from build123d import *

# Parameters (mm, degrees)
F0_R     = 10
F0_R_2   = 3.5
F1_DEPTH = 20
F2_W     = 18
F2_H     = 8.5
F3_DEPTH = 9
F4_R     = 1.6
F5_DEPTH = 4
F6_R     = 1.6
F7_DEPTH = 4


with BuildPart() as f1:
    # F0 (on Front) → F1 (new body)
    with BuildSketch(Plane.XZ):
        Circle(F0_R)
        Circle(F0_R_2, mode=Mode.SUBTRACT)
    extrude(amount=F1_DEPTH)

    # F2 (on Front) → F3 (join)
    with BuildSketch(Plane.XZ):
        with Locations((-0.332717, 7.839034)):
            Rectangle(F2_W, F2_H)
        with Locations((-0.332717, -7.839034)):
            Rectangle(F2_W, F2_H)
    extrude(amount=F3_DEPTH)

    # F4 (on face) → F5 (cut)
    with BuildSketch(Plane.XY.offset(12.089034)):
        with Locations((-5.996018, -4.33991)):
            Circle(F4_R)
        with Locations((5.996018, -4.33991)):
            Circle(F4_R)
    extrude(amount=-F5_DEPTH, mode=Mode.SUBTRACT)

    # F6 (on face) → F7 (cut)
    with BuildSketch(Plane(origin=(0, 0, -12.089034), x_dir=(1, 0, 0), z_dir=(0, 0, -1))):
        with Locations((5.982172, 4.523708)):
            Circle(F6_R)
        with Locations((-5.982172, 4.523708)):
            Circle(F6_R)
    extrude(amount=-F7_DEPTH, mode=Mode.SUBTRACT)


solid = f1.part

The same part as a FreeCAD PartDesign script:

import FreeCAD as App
import Part
import Sketcher

V = App.Vector

doc = App.newDocument("Part")
params = doc.addObject("Spreadsheet::Sheet", "Params")
for row, (alias, value) in enumerate([
    ("sketch1_diameter", "20 mm"),
    ("sketch1_diameter2", "7 mm"),
    ("pad1_length", "20 mm"),
    ("sketch2_width", "18 mm"),
    ("sketch2_height", "8.5 mm"),
    ("pad2_length", "9 mm"),
    ("sketch3_diameter", "3.2 mm"),
    ("pocket1_length", "4 mm"),
    ("sketch4_diameter", "3.2 mm"),
    ("pocket2_length", "4 mm"),
], start=1):
    params.set(f"A{row}", alias)
    params.set(f"B{row}", "=" + value)
    params.setAlias(f"B{row}", alias)

body = doc.addObject("PartDesign::Body", "Body")

sketch1 = body.newObject("Sketcher::SketchObject", "Sketch")
sketch1.AttachmentSupport = (doc.getObject("XZ_Plane"), [""])
sketch1.MapMode = "FlatFace"
sketch1.addGeometry([
    Part.Circle(V(0, 0, 0), V(0, 0, 1), 10),
    Part.Circle(V(0, 0, 0), V(0, 0, 1), 3.5),
], False)
sketch1.addConstraint([
    Sketcher.Constraint("Coincident", 0, 3, -1, 1),
    Sketcher.Constraint("Coincident", 1, 3, -1, 1),
    Sketcher.Constraint("Diameter", 0, 20.0),
    Sketcher.Constraint("Diameter", 1, 7.0),
])
sketch1.setExpression("Constraints[2]", "Params.sketch1_diameter")
sketch1.setExpression("Constraints[3]", "Params.sketch1_diameter2")
pad1 = body.newObject("PartDesign::Pad", "Pad")
pad1.Profile = sketch1
pad1.setExpression("Length", "Params.pad1_length")

sketch2 = body.newObject("Sketcher::SketchObject", "Sketch001")
sketch2.AttachmentSupport = (doc.getObject("XZ_Plane"), [""])
sketch2.MapMode = "FlatFace"
sketch2.addGeometry([
    Part.LineSegment(V(-9, 12, 0), V(-9, 4, 0)),
    Part.LineSegment(V(-9, 4, 0), V(9, 4, 0)),
    Part.LineSegment(V(9, 4, 0), V(9, 12, 0)),
    Part.LineSegment(V(9, 12, 0), V(-9, 12, 0)),
    Part.LineSegment(V(-9, -4, 0), V(-9, -12, 0)),
    Part.LineSegment(V(-9, -12, 0), V(9, -12, 0)),
    Part.LineSegment(V(9, -12, 0), V(9, -4, 0)),
    Part.LineSegment(V(9, -4, 0), V(-9, -4, 0)),
], False)
sketch2.addConstraint([
    Sketcher.Constraint("Coincident", 0, 2, 1, 1),
    Sketcher.Constraint("Coincident", 1, 2, 2, 1),
    Sketcher.Constraint("Coincident", 2, 2, 3, 1),
    Sketcher.Constraint("Coincident", 3, 2, 0, 1),
    Sketcher.Constraint("Coincident", 4, 2, 5, 1),
    Sketcher.Constraint("Coincident", 5, 2, 6, 1),
    Sketcher.Constraint("Coincident", 6, 2, 7, 1),
    Sketcher.Constraint("Coincident", 7, 2, 4, 1),
    Sketcher.Constraint("Vertical", 0),
    Sketcher.Constraint("Horizontal", 1),
    Sketcher.Constraint("Vertical", 2),
    Sketcher.Constraint("Horizontal", 3),
    Sketcher.Constraint("Vertical", 4),
    Sketcher.Constraint("Horizontal", 5),
    Sketcher.Constraint("Vertical", 6),
    Sketcher.Constraint("Horizontal", 7),
    Sketcher.Constraint("Symmetric", 3, 2, 4, 2, -1),
    Sketcher.Constraint("Symmetric", 1, 2, 6, 2, -1),
    Sketcher.Constraint("DistanceX", 1, 1, 1, 2, 18.0),
    Sketcher.Constraint("DistanceY", 0, 2, 0, 1, 8.5),
    Sketcher.Constraint("DistanceX", 0, 2, -1, 1, 9.332717),
    Sketcher.Constraint("DistanceY", -1, 1, 0, 2, 3.589034),
])
sketch2.setExpression("Constraints[18]", "Params.sketch2_width")
sketch2.setExpression("Constraints[19]", "Params.sketch2_height")
pad2 = body.newObject("PartDesign::Pad", "Pad001")
pad2.Profile = sketch2
pad2.setExpression("Length", "Params.pad2_length")

sketch3 = body.newObject("Sketcher::SketchObject", "Sketch002")
sketch3.AttachmentSupport = (doc.getObject("XY_Plane"), [""])
sketch3.MapMode = "FlatFace"
sketch3.AttachmentOffset = App.Placement(V(0, 0, 12.089034), App.Rotation())
sketch3.addGeometry([
    Part.Circle(V(-6, -4.3, 0), V(0, 0, 1), 1.6),
    Part.Circle(V(6, -4.3, 0), V(0, 0, 1), 1.6),
], False)
sketch3.addConstraint([
    Sketcher.Constraint("Equal", 0, 1),
    Sketcher.Constraint("Symmetric", 0, 3, 1, 3, -2),
    Sketcher.Constraint("Diameter", 0, 3.2),
    Sketcher.Constraint("DistanceX", 0, 3, -1, 1, 5.996018),
    Sketcher.Constraint("DistanceY", 0, 3, -1, 1, 4.33991),
])
sketch3.setExpression("Constraints[2]", "Params.sketch3_diameter")
pocket1 = body.newObject("PartDesign::Pocket", "Pocket")
pocket1.Profile = sketch3
pocket1.setExpression("Length", "Params.pocket1_length")

sketch4 = body.newObject("Sketcher::SketchObject", "Sketch003")
sketch4.AttachmentSupport = (doc.getObject("XY_Plane"), [""])
sketch4.MapMode = "FlatFace"
sketch4.AttachmentOffset = App.Placement(V(0, 0, -12.089034), App.Rotation())
sketch4.addGeometry([
    Part.Circle(V(6, -4.5, 0), V(0, 0, 1), 1.6),
    Part.Circle(V(-6, -4.5, 0), V(0, 0, 1), 1.6),
], False)
sketch4.addConstraint([
    Sketcher.Constraint("Equal", 0, 1),
    Sketcher.Constraint("Symmetric", 0, 3, 1, 3, -2),
    Sketcher.Constraint("Diameter", 0, 3.2),
    Sketcher.Constraint("DistanceX", -1, 1, 0, 3, 5.982172),
    Sketcher.Constraint("DistanceY", 0, 3, -1, 1, 4.523708),
])
sketch4.setExpression("Constraints[2]", "Params.sketch4_diameter")
pocket2 = body.newObject("PartDesign::Pocket", "Pocket001")
pocket2.Profile = sketch4
pocket2.setExpression("Length", "Params.pocket2_length")
pocket2.Reversed = True

doc.recompute()
